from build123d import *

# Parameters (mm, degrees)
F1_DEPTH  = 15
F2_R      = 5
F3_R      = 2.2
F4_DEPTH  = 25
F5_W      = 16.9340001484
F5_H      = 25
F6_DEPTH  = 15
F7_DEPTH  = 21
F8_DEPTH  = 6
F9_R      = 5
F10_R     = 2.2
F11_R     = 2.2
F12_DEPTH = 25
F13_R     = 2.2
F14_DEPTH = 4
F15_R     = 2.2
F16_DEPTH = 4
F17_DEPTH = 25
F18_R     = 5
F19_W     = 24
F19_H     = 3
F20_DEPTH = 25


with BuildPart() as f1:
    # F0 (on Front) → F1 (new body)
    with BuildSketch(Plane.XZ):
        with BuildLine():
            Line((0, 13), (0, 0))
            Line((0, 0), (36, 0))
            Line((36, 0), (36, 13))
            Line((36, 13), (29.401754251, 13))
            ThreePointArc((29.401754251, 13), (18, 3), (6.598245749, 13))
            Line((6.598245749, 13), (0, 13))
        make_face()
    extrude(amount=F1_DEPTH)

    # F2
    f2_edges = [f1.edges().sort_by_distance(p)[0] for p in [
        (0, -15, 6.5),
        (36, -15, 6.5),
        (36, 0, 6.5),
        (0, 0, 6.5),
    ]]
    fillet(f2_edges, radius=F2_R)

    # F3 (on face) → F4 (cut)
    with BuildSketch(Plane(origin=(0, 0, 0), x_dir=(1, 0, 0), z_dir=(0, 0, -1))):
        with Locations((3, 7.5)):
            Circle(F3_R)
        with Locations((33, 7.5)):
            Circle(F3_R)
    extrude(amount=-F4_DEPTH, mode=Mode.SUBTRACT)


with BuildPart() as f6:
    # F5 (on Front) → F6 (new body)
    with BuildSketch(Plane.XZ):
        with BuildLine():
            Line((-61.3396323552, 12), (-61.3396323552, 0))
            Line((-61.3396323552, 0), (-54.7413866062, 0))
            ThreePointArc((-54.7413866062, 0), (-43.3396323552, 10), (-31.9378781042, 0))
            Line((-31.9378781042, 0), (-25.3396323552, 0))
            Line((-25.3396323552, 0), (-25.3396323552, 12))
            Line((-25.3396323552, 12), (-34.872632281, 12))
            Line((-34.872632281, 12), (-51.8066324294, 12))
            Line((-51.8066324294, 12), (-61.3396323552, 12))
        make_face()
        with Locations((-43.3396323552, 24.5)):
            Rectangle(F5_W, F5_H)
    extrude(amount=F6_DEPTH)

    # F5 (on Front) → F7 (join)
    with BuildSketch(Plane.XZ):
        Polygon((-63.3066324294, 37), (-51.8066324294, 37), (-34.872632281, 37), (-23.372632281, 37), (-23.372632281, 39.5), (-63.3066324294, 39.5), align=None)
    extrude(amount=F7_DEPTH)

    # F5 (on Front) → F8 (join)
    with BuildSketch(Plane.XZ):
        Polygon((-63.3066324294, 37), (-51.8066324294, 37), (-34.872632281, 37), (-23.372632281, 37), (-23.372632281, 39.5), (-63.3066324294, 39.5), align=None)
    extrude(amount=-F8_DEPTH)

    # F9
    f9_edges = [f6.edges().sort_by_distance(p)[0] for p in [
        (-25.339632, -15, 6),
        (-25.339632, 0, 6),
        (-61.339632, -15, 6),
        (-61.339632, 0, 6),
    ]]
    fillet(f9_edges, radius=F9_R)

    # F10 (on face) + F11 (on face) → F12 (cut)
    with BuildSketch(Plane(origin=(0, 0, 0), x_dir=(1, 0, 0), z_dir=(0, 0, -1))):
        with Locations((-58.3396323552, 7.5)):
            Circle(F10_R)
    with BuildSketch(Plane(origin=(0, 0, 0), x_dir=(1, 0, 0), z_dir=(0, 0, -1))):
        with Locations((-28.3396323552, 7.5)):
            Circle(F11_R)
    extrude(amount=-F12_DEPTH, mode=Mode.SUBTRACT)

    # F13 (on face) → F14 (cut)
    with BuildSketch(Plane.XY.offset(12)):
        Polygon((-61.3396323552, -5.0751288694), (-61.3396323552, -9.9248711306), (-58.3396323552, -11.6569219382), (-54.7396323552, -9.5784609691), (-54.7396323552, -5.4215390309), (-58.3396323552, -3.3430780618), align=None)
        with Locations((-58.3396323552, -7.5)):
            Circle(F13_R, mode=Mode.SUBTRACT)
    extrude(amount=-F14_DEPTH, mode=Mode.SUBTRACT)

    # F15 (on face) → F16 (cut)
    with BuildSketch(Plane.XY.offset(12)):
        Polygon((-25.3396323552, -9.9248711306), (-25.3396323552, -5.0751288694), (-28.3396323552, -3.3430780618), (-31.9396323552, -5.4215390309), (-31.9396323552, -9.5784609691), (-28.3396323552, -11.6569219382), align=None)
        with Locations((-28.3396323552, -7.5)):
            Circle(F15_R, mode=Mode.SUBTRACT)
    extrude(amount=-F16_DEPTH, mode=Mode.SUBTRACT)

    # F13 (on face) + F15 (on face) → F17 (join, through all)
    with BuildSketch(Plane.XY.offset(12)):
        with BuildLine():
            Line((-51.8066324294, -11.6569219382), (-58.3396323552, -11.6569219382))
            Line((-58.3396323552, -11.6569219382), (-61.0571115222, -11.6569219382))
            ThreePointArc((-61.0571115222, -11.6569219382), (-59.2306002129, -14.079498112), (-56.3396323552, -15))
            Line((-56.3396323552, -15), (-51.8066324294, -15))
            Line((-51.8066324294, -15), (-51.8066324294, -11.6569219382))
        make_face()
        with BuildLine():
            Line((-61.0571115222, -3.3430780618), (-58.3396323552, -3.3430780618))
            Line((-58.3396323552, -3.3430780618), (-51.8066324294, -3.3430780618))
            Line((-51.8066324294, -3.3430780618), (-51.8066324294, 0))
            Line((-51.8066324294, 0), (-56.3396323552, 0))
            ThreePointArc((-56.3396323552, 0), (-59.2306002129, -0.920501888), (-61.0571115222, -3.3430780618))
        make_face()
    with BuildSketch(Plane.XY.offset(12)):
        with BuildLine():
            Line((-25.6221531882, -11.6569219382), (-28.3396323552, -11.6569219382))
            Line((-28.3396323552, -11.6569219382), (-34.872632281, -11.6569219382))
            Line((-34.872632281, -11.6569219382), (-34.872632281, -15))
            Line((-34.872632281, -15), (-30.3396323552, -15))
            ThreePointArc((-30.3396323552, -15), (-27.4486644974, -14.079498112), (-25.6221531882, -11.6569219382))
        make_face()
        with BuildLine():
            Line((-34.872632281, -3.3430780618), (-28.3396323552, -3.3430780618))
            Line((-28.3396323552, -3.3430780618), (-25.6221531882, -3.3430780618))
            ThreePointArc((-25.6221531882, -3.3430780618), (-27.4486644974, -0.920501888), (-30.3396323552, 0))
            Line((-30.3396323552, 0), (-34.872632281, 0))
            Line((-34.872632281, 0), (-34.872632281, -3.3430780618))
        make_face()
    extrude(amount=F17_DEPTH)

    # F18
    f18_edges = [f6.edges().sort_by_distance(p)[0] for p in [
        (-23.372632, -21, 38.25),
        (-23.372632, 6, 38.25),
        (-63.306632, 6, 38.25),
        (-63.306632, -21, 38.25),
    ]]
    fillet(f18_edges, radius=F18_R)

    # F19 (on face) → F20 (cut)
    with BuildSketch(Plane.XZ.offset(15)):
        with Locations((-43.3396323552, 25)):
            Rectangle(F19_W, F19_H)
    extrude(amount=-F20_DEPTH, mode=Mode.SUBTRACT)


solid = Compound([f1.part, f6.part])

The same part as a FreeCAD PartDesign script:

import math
import FreeCAD as App
import Part
import Sketcher
from FreeCAD import Vector
Q = App.Units.Quantity


def edges_at(feature, points):
    """Names of the edges that pass closest to the given points."""
    edges = feature.Shape.Edges
    near = lambda p: min(range(len(edges)), key=lambda i: edges[i].distToShape(Part.Vertex(*p))[0])
    return sorted({f"Edge{near(p) + 1}" for p in points})

doc = App.newDocument("Part")
body = doc.addObject("PartDesign::Body", "Body")

# Sketch on XZ plane
sketch1 = body.newObject("Sketcher::SketchObject", "Sketch")
sketch1.AttachmentSupport = (doc.getObject("XZ_Plane"), [""])
sketch1.MapMode = "FlatFace"
sketch1.addGeometry([
    Part.LineSegment(Vector(0, 13, 0), Vector(0, 0, 0)),  # 0
    Part.LineSegment(Vector(0, 0, 0), Vector(36, 0, 0)),  # 1
    Part.LineSegment(Vector(36, 0, 0), Vector(36, 13, 0)),  # 2
    Part.LineSegment(Vector(36, 13, 0), Vector(29, 13, 0)),  # 3
    Part.ArcOfCircle(Part.Circle(Vector(18, 14, 0), Vector(0, 0, 1), 12), math.radians(-173), math.radians(-7)),  # 4
    Part.LineSegment(Vector(7, 13, 0), Vector(0, 13, 0)),  # 5
], False)
sketch1.addConstraint([
    Sketcher.Constraint("Coincident", 0, 2, 1, 1),
    Sketcher.Constraint("Coincident", 1, 2, 2, 1),
    Sketcher.Constraint("Coincident", 2, 2, 3, 1),
    Sketcher.Constraint("Coincident", 3, 2, 4, 2),
    Sketcher.Constraint("Coincident", 4, 1, 5, 1),
    Sketcher.Constraint("Coincident", 5, 2, 0, 1),
    Sketcher.Constraint("Vertical", 0),
    Sketcher.Constraint("Horizontal", 1),
    Sketcher.Constraint("Vertical", 2),
    Sketcher.Constraint("Horizontal", 3),
    Sketcher.Constraint("Horizontal", 5),
    Sketcher.Constraint("Coincident", 0, 2, -1, 1),
    Sketcher.Constraint("Horizontal", 3, 2, 4, 1),
    Sketcher.Constraint("Equal", 3, 5),
    Sketcher.Constraint("Radius", 4, Q("11.5 mm")),
    Sketcher.Constraint("DistanceX", 1, 1, 1, 2, Q("36 mm")),
    Sketcher.Constraint("DistanceY", 0, 2, 0, 1, Q("13 mm")),
    Sketcher.Constraint("DistanceY", -1, 1, 4, 3, Q("14.5 mm")),
])
pad1 = body.newObject("PartDesign::Pad", "Pad")
pad1.Profile = sketch1
pad1.Length = 15
doc.recompute()

fillet = body.newObject("PartDesign::Fillet", "Fillet")
fillet.Base = (pad1, edges_at(pad1, [
    (0, -15, 6.5),
    (36, -15, 6.5),
    (36, 0, 6.5),
    (0, 0, 6.5),
]))
fillet.Radius = 5

# Sketch on XY plane
sketch2 = body.newObject("Sketcher::SketchObject", "Sketch001")
sketch2.AttachmentSupport = (doc.getObject("XY_Plane"), [""])
sketch2.MapMode = "FlatFace"
sketch2.addGeometry([
    Part.Circle(Vector(3, -7.5, 0), Vector(0, 0, 1), 2.2),
    Part.Circle(Vector(33, -7.5, 0), Vector(0, 0, 1), 2.2),
], False)
sketch2.addConstraint([
    Sketcher.Constraint("Equal", 0, 1),
    Sketcher.Constraint("Horizontal", 0, 3, 1, 3),
    Sketcher.Constraint("Diameter", 0, Q("4.4 mm")),
    Sketcher.Constraint("DistanceX", -1, 1, 0, 3, Q("3 mm")),
    Sketcher.Constraint("DistanceX", -1, 1, 1, 3, Q("33 mm")),
    Sketcher.Constraint("DistanceY", 0, 3, -1, 1, Q("7.5 mm")),
])
pocket1 = body.newObject("PartDesign::Pocket", "Pocket")
pocket1.Profile = sketch2
pocket1.Length = 25
pocket1.Reversed = True
body2 = doc.addObject("PartDesign::Body", "Body001")

# Sketch on XZ plane
sketch3 = body2.newObject("Sketcher::SketchObject", "Sketch002")
sketch3.AttachmentSupport = (doc.getObject("XZ_Plane001"), [""])
sketch3.MapMode = "FlatFace"
sketch3.addGeometry([
    Part.LineSegment(Vector(-61, 12, 0), Vector(-61, 0, 0)),  # 0
    Part.LineSegment(Vector(-61, 0, 0), Vector(-55, 0, 0)),  # 1
    Part.ArcOfCircle(Part.Circle(Vector(-43, -2, 0), Vector(0, 0, 1), 12), math.radians(7), math.radians(173)),  # 2
    Part.LineSegment(Vector(-32, 0, 0), Vector(-25, 0, 0)),  # 3
    Part.LineSegment(Vector(-25, 0, 0), Vector(-25, 12, 0)),  # 4
    Part.LineSegment(Vector(-25, 12, 0), Vector(-35, 12, 0)),  # 5
    Part.LineSegment(Vector(-35, 12, 0), Vector(-35, 37, 0)),  # 6
    Part.LineSegment(Vector(-35, 37, 0), Vector(-52, 37, 0)),  # 7
    Part.LineSegment(Vector(-52, 37, 0), Vector(-52, 12, 0)),  # 8
    Part.LineSegment(Vector(-52, 12, 0), Vector(-61, 12, 0)),  # 9
], False)
sketch3.addConstraint([
    Sketcher.Constraint("Coincident", 0, 2, 1, 1),
    Sketcher.Constraint("Coincident", 1, 2, 2, 2),
    Sketcher.Constraint("Coincident", 2, 1, 3, 1),
    Sketcher.Constraint("Coincident", 3, 2, 4, 1),
    Sketcher.Constraint("Coincident", 4, 2, 5, 1),
    Sketcher.Constraint("Coincident", 5, 2, 6, 1),
    Sketcher.Constraint("Coincident", 6, 2, 7, 1),
    Sketcher.Constraint("Coincident", 7, 2, 8, 1),
    Sketcher.Constraint("Coincident", 8, 2, 9, 1),
    Sketcher.Constraint("Coincident", 9, 2, 0, 1),
    Sketcher.Constraint("Vertical", 0),
    Sketcher.Constraint("Horizontal", 1),
    Sketcher.Constraint("Horizontal", 3),
    Sketcher.Constraint("Vertical", 4),
    Sketcher.Constraint("Horizontal", 5),
    Sketcher.Constraint("Vertical", 6),
    Sketcher.Constraint("Horizontal", 7),
    Sketcher.Constraint("Vertical", 8),
    Sketcher.Constraint("Horizontal", 9),
    Sketcher.Constraint("PointOnObject", 0, 2, -1),
    Sketcher.Constraint("PointOnObject", 2, 1, -1),
    Sketcher.Constraint("Horizontal", 5, 2, 8, 2),
    Sketcher.Constraint("Equal", 1, 3),
    Sketcher.Constraint("Equal", 5, 9),
    Sketcher.Constraint("Radius", 2, Q("11.5 mm")),
    Sketcher.Constraint("DistanceY", 0, 2, 0, 1, Q("12 mm")),
    Sketcher.Constraint("DistanceY", 6, 1, 6, 2, Q("25 mm")),
    Sketcher.Constraint("DistanceX", 0, 2, 2, 3, Q("18 mm")),
    Sketcher.Constraint("DistanceY", 2, 3, -1, 1, Q("1.5 mm")),
    Sketcher.Constraint("DistanceX", 5, 2, 5, 1, Q("9.533 mm")),
    Sketcher.Constraint("DistanceX", 2, 1, -1, 1, Q("31.937878 mm")),
])
pad2 = body2.newObject("PartDesign::Pad", "Pad001")
pad2.Profile = sketch3
pad2.Length = 15

# Sketch on XZ plane
sketch4 = body2.newObject("Sketcher::SketchObject", "Sketch003")
sketch4.AttachmentSupport = (doc.getObject("XZ_Plane001"), [""])
sketch4.MapMode = "FlatFace"
sketch4.addGeometry([
    Part.LineSegment(Vector(-63.3, 37, 0), Vector(-23.4, 37, 0)),
    Part.LineSegment(Vector(-23.4, 37, 0), Vector(-23.4, 39.5, 0)),
    Part.LineSegment(Vector(-23.4, 39.5, 0), Vector(-63.3, 39.5, 0)),
    Part.LineSegment(Vector(-63.3, 39.5, 0), Vector(-63.3, 37, 0)),
], False)
sketch4.addConstraint([
    Sketcher.Constraint("Coincident", 0, 2, 1, 1),
    Sketcher.Constraint("Coincident", 1, 2, 2, 1),
    Sketcher.Constraint("Coincident", 2, 2, 3, 1),
    Sketcher.Constraint("Coincident", 3, 2, 0, 1),
    Sketcher.Constraint("Horizontal", 0),
    Sketcher.Constraint("Vertical", 1),
    Sketcher.Constraint("Horizontal", 2),
    Sketcher.Constraint("Vertical", 3),
    Sketcher.Constraint("DistanceY", 1, 1, 1, 2, Q("2.5 mm")),
    Sketcher.Constraint("DistanceY", -1, 1, 0, 2, Q("37 mm")),
    Sketcher.Constraint("DistanceX", 0, 1, 0, 2, Q("39.934 mm")),
    Sketcher.Constraint("DistanceX", 0, 2, -1, 1, Q("23.372632 mm")),
])
pad3 = body2.newObject("PartDesign::Pad", "Pad002")
pad3.Profile = sketch4
pad3.Length = 21

# Sketch on XZ plane
sketch5 = body2.newObject("Sketcher::SketchObject", "Sketch004")
sketch5.AttachmentSupport = (doc.getObject("XZ_Plane001"), [""])
sketch5.MapMode = "FlatFace"
sketch5.addGeometry([
    Part.LineSegment(Vector(-63.3, 37, 0), Vector(-23.4, 37, 0)),
    Part.LineSegment(Vector(-23.4, 37, 0), Vector(-23.4, 39.5, 0)),
    Part.LineSegment(Vector(-23.4, 39.5, 0), Vector(-63.3, 39.5, 0)),
    Part.LineSegment(Vector(-63.3, 39.5, 0), Vector(-63.3, 37, 0)),
], False)
sketch5.addConstraint([
    Sketcher.Constraint("Coincident", 0, 2, 1, 1),
    Sketcher.Constraint("Coincident", 1, 2, 2, 1),
    Sketcher.Constraint("Coincident", 2, 2, 3, 1),
    Sketcher.Constraint("Coincident", 3, 2, 0, 1),
    Sketcher.Constraint("Horizontal", 0),
    Sketcher.Constraint("Vertical", 1),
    Sketcher.Constraint("Horizontal", 2),
    Sketcher.Constraint("Vertical", 3),
    Sketcher.Constraint("DistanceY", 1, 1, 1, 2, Q("2.5 mm")),
    Sketcher.Constraint("DistanceY", -1, 1, 0, 2, Q("37 mm")),
    Sketcher.Constraint("DistanceX", 0, 1, 0, 2, Q("39.934 mm")),
    Sketcher.Constraint("DistanceX", 0, 2, -1, 1, Q("23.372632 mm")),
])
pad4 = body2.newObject("PartDesign::Pad", "Pad003")
pad4.Profile = sketch5
pad4.Length = 6
pad4.Reversed = True
doc.recompute()

fillet2 = body2.newObject("PartDesign::Fillet", "Fillet001")
fillet2.Base = (pad4, edges_at(pad4, [
    (-25.34, -15, 6),
    (-25.34, 0, 6),
    (-61.34, -15, 6),
    (-61.34, 0, 6),
]))
fillet2.Radius = 5

# Sketch on XY plane
sketch6 = body2.newObject("Sketcher::SketchObject", "Sketch005")
sketch6.AttachmentSupport = (doc.getObject("XY_Plane001"), [""])
sketch6.MapMode = "FlatFace"
sketch6.addGeometry([
    Part.Circle(Vector(-58.3, -7.5, 0), Vector(0, 0, 1), 2.2),
    Part.Circle(Vector(-28.3, -7.5, 0), Vector(0, 0, 1), 2.2),
], False)
sketch6.addConstraint([
    Sketcher.Constraint("Equal", 0, 1),
    Sketcher.Constraint("Horizontal", 0, 3, 1, 3),
    Sketcher.Constraint("Diameter", 0, Q("4.4 mm")),
    Sketcher.Constraint("DistanceX", 0, 3, 1, 3, Q("30 mm")),
    Sketcher.Constraint("DistanceY", 0, 3, -1, 1, Q("7.5 mm")),
    Sketcher.Constraint("DistanceX", 0, 3, -1, 1, Q("58.339632 mm")),
])
pocket2 = body2.newObject("PartDesign::Pocket", "Pocket001")
pocket2.Profile = sketch6
pocket2.Length = 25
pocket2.Reversed = True

# Sketch on XY plane
sketch7 = body2.newObject("Sketcher::SketchObject", "Sketch006")
sketch7.AttachmentSupport = (doc.getObject("XY_Plane001"), [""])
sketch7.MapMode = "FlatFace"
sketch7.AttachmentOffset = App.Placement(Vector(0, 0, 12), App.Rotation())
sketch7.addGeometry([
    Part.LineSegment(Vector(-61.3, -5.1, 0), Vector(-61.3, -9.9, 0)),  # 0
    Part.LineSegment(Vector(-61.3, -9.9, 0), Vector(-58.3, -11.7, 0)),  # 1
    Part.LineSegment(Vector(-58.3, -11.7, 0), Vector(-54.7, -9.6, 0)),  # 2
    Part.LineSegment(Vector(-54.7, -9.6, 0), Vector(-54.7, -5.4, 0)),  # 3
    Part.LineSegment(Vector(-54.7, -5.4, 0), Vector(-58.3, -3.3, 0)),  # 4
    Part.LineSegment(Vector(-58.3, -3.3, 0), Vector(-61.3, -5.1, 0)),  # 5
    Part.Circle(Vector(-58.3, -7.5, 0), Vector(0, 0, 1), 2.2),  # 6
], False)
sketch7.addConstraint([
    Sketcher.Constraint("Coincident", 0, 2, 1, 1),
    Sketcher.Constraint("Coincident", 1, 2, 2, 1),
    Sketcher.Constraint("Coincident", 2, 2, 3, 1),
    Sketcher.Constraint("Coincident", 3, 2, 4, 1),
    Sketcher.Constraint("Coincident", 4, 2, 5, 1),
    Sketcher.Constraint("Coincident", 5, 2, 0, 1),
    Sketcher.Constraint("Vertical", 0),
    Sketcher.Constraint("Vertical", 3),
    Sketcher.Constraint("Parallel", 1, 4),
    Sketcher.Constraint("Parallel", 2, 5),
    Sketcher.Constraint("Vertical", 6, 3, 1, 2),
    Sketcher.Constraint("Vertical", 1, 2, 4, 2),
    Sketcher.Constraint("Equal", 2, 4),
    Sketcher.Constraint("Diameter", 6, Q("4.4 mm")),
    Sketcher.Constraint("Angle", 1, Q("-30 deg")),
    Sketcher.Constraint("DistanceX", 0, 2, 6, 3, Q("3 mm")),
    Sketcher.Constraint("DistanceY", 6, 3, -1, 1, Q("7.5 mm")),
    Sketcher.Constraint("DistanceX", 6, 3, 2, 2, Q("3.6 mm")),
    Sketcher.Constraint("DistanceY", 3, 1, 3, 2, Q("4.156922 mm")),
    Sketcher.Constraint("DistanceY", 0, 2, -1, 1, Q("9.924871 mm")),
    Sketcher.Constraint("DistanceX", 6, 3, -1, 1, Q("58.339632 mm")),
])
pocket3 = body2.newObject("PartDesign::Pocket", "Pocket002")
pocket3.Profile = sketch7
pocket3.Length = 4

# Sketch on XY plane
sketch8 = body2.newObject("Sketcher::SketchObject", "Sketch007")
sketch8.AttachmentSupport = (doc.getObject("XY_Plane001"), [""])
sketch8.MapMode = "FlatFace"
sketch8.AttachmentOffset = App.Placement(Vector(0, 0, 12), App.Rotation())
sketch8.addGeometry([
    Part.LineSegment(Vector(-25.3, -9.9, 0), Vector(-25.3, -5.1, 0)),  # 0
    Part.LineSegment(Vector(-25.3, -5.1, 0), Vector(-28.3, -3.3, 0)),  # 1
    Part.LineSegment(Vector(-28.3, -3.3, 0), Vector(-31.9, -5.4, 0)),  # 2
    Part.LineSegment(Vector(-31.9, -5.4, 0), Vector(-31.9, -9.6, 0)),  # 3
    Part.LineSegment(Vector(-31.9, -9.6, 0), Vector(-28.3, -11.7, 0)),  # 4
    Part.LineSegment(Vector(-28.3, -11.7, 0), Vector(-25.3, -9.9, 0)),  # 5
    Part.Circle(Vector(-28.3, -7.5, 0), Vector(0, 0, 1), 2.2),  # 6
], False)
sketch8.addConstraint([
    Sketcher.Constraint("Coincident", 0, 2, 1, 1),
    Sketcher.Constraint("Coincident", 1, 2, 2, 1),
    Sketcher.Constraint("Coincident", 2, 2, 3, 1),
    Sketcher.Constraint("Coincident", 3, 2, 4, 1),
    Sketcher.Constraint("Coincident", 4, 2, 5, 1),
    Sketcher.Constraint("Coincident", 5, 2, 0, 1),
    Sketcher.Constraint("Vertical", 0),
    Sketcher.Constraint("Vertical", 3),
    Sketcher.Constraint("Parallel", 1, 4),
    Sketcher.Constraint("Parallel", 2, 5),
    Sketcher.Constraint("Vertical", 6, 3, 1, 2),
    Sketcher.Constraint("Vertical", 1, 2, 4, 2),
    Sketcher.Constraint("Equal", 2, 4),
    Sketcher.Constraint("Diameter", 6, Q("4.4 mm")),
    Sketcher.Constraint("Angle", 1, Q("150 deg")),
    Sketcher.Constraint("DistanceX", 6, 3, 0, 2, Q("3 mm")),
    Sketcher.Constraint("DistanceY", 6, 3, -1, 1, Q("7.5 mm")),
    Sketcher.Constraint("DistanceX", 2, 2, 6, 3, Q("3.6 mm")),
    Sketcher.Constraint("DistanceY", 3, 2, 3, 1, Q("4.156922 mm")),
    Sketcher.Constraint("DistanceY", 0, 2, -1, 1, Q("5.075129 mm")),
    Sketcher.Constraint("DistanceX", 6, 3, -1, 1, Q("28.339632 mm")),
])
pocket4 = body2.newObject("PartDesign::Pocket", "Pocket003")
pocket4.Profile = sketch8
pocket4.Length = 4

# Sketch on XY plane
sketch9 = body2.newObject("Sketcher::SketchObject", "Sketch008")
sketch9.AttachmentSupport = (doc.getObject("XY_Plane001"), [""])
sketch9.MapMode = "FlatFace"
sketch9.AttachmentOffset = App.Placement(Vector(0, 0, 12), App.Rotation())
sketch9.addGeometry([
    Part.LineSegment(Vector(-51.8, -11.7, 0), Vector(-61.1, -11.7, 0)),  # 0
    Part.ArcOfCircle(Part.Circle(Vector(-56.3, -10, 0), Vector(0, 0, 1), 5), math.radians(-161), math.radians(-90)),  # 1
    Part.LineSegment(Vector(-56.3, -15, 0), Vector(-51.8, -15, 0)),  # 2
    Part.LineSegment(Vector(-51.8, -15, 0), Vector(-51.8, -11.7, 0)),  # 3
    Part.LineSegment(Vector(-61.1, -3.3, 0), Vector(-51.8, -3.3, 0)),  # 4
    Part.LineSegment(Vector(-51.8, -3.3, 0), Vector(-51.8, 0, 0)),  # 5
    Part.LineSegment(Vector(-51.8, 0, 0), Vector(-56.3, 0, 0)),  # 6
    Part.ArcOfCircle(Part.Circle(Vector(-56.3, -5, 0), Vector(0, 0, 1), 5), math.radians(90), math.radians(161)),  # 7
    Part.LineSegment(Vector(-25.6, -11.7, 0), Vector(-34.9, -11.7, 0)),  # 8
    Part.LineSegment(Vector(-34.9, -11.7, 0), Vector(-34.9, -15, 0)),  # 9
    Part.LineSegment(Vector(-34.9, -15, 0), Vector(-30.3, -15, 0)),  # 10
    Part.ArcOfCircle(Part.Circle(Vector(-30.3, -10, 0), Vector(0, 0, 1), 5), math.radians(-90), math.radians(-19)),  # 11
    Part.LineSegment(Vector(-34.9, -3.3, 0), Vector(-25.6, -3.3, 0)),  # 12
    Part.ArcOfCircle(Part.Circle(Vector(-30.3, -5, 0), Vector(0, 0, 1), 5), math.radians(19), math.radians(90)),  # 13
    Part.LineSegment(Vector(-30.3, 0, 0), Vector(-34.9, 0, 0)),  # 14
    Part.LineSegment(Vector(-34.9, 0, 0), Vector(-34.9, -3.3, 0)),  # 15
], False)
sketch9.addConstraint([
    Sketcher.Constraint("Coincident", 0, 2, 1, 1),
    Sketcher.Constraint("Tangent", 1, 2, 2, 1),
    Sketcher.Constraint("Coincident", 2, 2, 3, 1),
    Sketcher.Constraint("Coincident", 3, 2, 0, 1),
    Sketcher.Constraint("Coincident", 4, 2, 5, 1),
    Sketcher.Constraint("Coincident", 5, 2, 6, 1),
    Sketcher.Constraint("Tangent", 6, 2, 7, 1),
    Sketcher.Constraint("Coincident", 7, 2, 4, 1),
    Sketcher.Constraint("Coincident", 8, 2, 9, 1),
    Sketcher.Constraint("Coincident", 9, 2, 10, 1),
    Sketcher.Constraint("Tangent", 10, 2, 11, 1),
    Sketcher.Constraint("Coincident", 11, 2, 8, 1),
    Sketcher.Constraint("Coincident", 12, 2, 13, 1),
    Sketcher.Constraint("Tangent", 13, 2, 14, 1),
    Sketcher.Constraint("Coincident", 14, 2, 15, 1),
    Sketcher.Constraint("Coincident", 15, 2, 12, 1),
    Sketcher.Constraint("Horizontal", 0),
    Sketcher.Constraint("Horizontal", 2),
    Sketcher.Constraint("Vertical", 3),
    Sketcher.Constraint("Horizontal", 4),
    Sketcher.Constraint("Vertical", 5),
    Sketcher.Constraint("Horizontal", 6),
    Sketcher.Constraint("Horizontal", 8),
    Sketcher.Constraint("Vertical", 9),
    Sketcher.Constraint("Horizontal", 10),
    Sketcher.Constraint("Horizontal", 12),
    Sketcher.Constraint("Horizontal", 14),
    Sketcher.Constraint("Vertical", 15),
    Sketcher.Constraint("Equal", 1, 7),
    Sketcher.Constraint("Equal", 7, 11),
    Sketcher.Constraint("Equal", 11, 13),
    Sketcher.Constraint("PointOnObject", 5, 2, -1),
    Sketcher.Constraint("PointOnObject", 13, 2, -1),
    Sketcher.Constraint("Horizontal", 1, 3, 11, 3),
    Sketcher.Constraint("Horizontal", 3, 2, 8, 2),
    Sketcher.Constraint("Horizontal", 7, 2, 12, 2),
    Sketcher.Constraint("Vertical", 1, 3, 7, 3),
    Sketcher.Constraint("Vertical", 11, 3, 13, 3),
    Sketcher.Constraint("Vertical", 3, 2, 4, 2),
    Sketcher.Constraint("Vertical", 0, 2, 7, 2),
    Sketcher.Constraint("Vertical", 9, 2, 14, 2),
    Sketcher.Constraint("Equal", 4, 8),
    Sketcher.Constraint("Radius", 1, Q("5 mm")),
    Sketcher.Constraint("DistanceY", 1, 3, -1, 1, Q("10 mm")),
    Sketcher.Constraint("DistanceX", 1, 3, 11, 3, Q("26 mm")),
    Sketcher.Constraint("DistanceX", 2, 1, 2, 2, Q("4.533 mm")),
    Sketcher.Constraint("DistanceX", 0, 2, 0, 1, Q("9.250479 mm")),
    Sketcher.Constraint("DistanceX", 0, 2, -1, 1, Q("61.057112 mm")),
])
pad5 = body2.newObject("PartDesign::Pad", "Pad004")
pad5.Profile = sketch9
pad5.Type = "UpToLast"
doc.recompute()

fillet3 = body2.newObject("PartDesign::Fillet", "Fillet002")
fillet3.Base = (pad5, edges_at(pad5, [
    (-23.373, -21, 38.25),
    (-23.373, 6, 38.25),
    (-63.307, 6, 38.25),
    (-63.307, -21, 38.25),
]))
fillet3.Radius = 5

# Sketch on XZ plane
sketch10 = body2.newObject("Sketcher::SketchObject", "Sketch009")
sketch10.AttachmentSupport = (doc.getObject("XZ_Plane001"), [""])
sketch10.MapMode = "FlatFace"
sketch10.AttachmentOffset = App.Placement(Vector(0, 0, 15), App.Rotation())
sketch10.addGeometry([
    Part.LineSegment(Vector(-55.3, 26.5, 0), Vector(-55.3, 23.5, 0)),
    Part.LineSegment(Vector(-55.3, 23.5, 0), Vector(-31.3, 23.5, 0)),
    Part.LineSegment(Vector(-31.3, 23.5, 0), Vector(-31.3, 26.5, 0)),
    Part.LineSegment(Vector(-31.3, 26.5, 0), Vector(-55.3, 26.5, 0)),
], False)
sketch10.addConstraint([
    Sketcher.Constraint("Coincident", 0, 2, 1, 1),
    Sketcher.Constraint("Coincident", 1, 2, 2, 1),
    Sketcher.Constraint("Coincident", 2, 2, 3, 1),
    Sketcher.Constraint("Coincident", 3, 2, 0, 1),
    Sketcher.Constraint("Vertical", 0),
    Sketcher.Constraint("Horizontal", 1),
    Sketcher.Constraint("Vertical", 2),
    Sketcher.Constraint("Horizontal", 3),
    Sketcher.Constraint("DistanceX", 1, 1, 1, 2, Q("24 mm")),
    Sketcher.Constraint("DistanceY", 0, 2, 0, 1, Q("3 mm")),
    Sketcher.Constraint("DistanceY", -1, 1, 0, 2, Q("23.5 mm")),
    Sketcher.Constraint("DistanceX", 0, 2, -1, 1, Q("55.339632 mm")),
])
pocket5 = body2.newObject("PartDesign::Pocket", "Pocket004")
pocket5.Profile = sketch10
pocket5.Length = 25

doc.recompute()
